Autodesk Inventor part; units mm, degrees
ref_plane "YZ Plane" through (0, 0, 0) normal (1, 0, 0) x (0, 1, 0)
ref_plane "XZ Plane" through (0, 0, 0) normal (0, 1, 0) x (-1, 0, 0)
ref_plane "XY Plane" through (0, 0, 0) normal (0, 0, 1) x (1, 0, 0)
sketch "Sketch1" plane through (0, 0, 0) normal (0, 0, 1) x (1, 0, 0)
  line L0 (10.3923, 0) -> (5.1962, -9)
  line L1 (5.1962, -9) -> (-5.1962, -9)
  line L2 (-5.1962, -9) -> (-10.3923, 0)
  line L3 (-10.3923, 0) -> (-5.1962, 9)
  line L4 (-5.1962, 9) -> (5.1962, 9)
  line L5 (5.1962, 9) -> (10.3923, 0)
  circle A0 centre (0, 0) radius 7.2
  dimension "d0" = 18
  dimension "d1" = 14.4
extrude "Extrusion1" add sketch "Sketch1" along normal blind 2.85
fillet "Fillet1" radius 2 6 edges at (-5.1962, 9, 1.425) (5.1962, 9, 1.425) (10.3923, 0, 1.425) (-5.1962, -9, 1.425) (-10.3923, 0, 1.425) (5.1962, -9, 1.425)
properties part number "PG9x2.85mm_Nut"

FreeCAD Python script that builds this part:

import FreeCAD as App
import Part
import Sketcher

V = App.Vector
Q = App.Units.Quantity


def edges_at(feature, points):
    """Names of the edges that pass closest to the given points."""
    edges = feature.Shape.Edges
    near = lambda p: min(range(len(edges)), key=lambda i: edges[i].distToShape(Part.Vertex(*p))[0])
    return sorted({f"Edge{near(p) + 1}" for p in points})

doc = App.newDocument("Part")
body = doc.addObject("PartDesign::Body", "Body")

sketch1 = body.newObject("Sketcher::SketchObject", "Sketch")
sketch1.AttachmentSupport = (doc.getObject("XY_Plane"), [""])
sketch1.MapMode = "FlatFace"
sketch1.addGeometry(Part.LineSegment(V(5, -9, 0), V(10, 0, 0)), False)
sketch1.addGeometry(Part.LineSegment(V(10, 0, 0), V(5, 9, 0)), False)
sketch1.addGeometry(Part.LineSegment(V(5, 9, 0), V(-5, 9, 0)), False)
sketch1.addGeometry(Part.LineSegment(V(-5, 9, 0), V(-10, 0, 0)), False)
sketch1.addGeometry(Part.LineSegment(V(-10, 0, 0), V(-5, -9, 0)), False)
sketch1.addGeometry(Part.LineSegment(V(-5, -9, 0), V(5, -9, 0)), False)
sketch1.addGeometry(Part.Circle(V(0, 0, 0), V(0, 0, 1), 7), False)
sketch1.addConstraint(Sketcher.Constraint("Coincident", 0, 2, 1, 1))
sketch1.addConstraint(Sketcher.Constraint("Coincident", 1, 2, 2, 1))
sketch1.addConstraint(Sketcher.Constraint("Coincident", 2, 2, 3, 1))
sketch1.addConstraint(Sketcher.Constraint("Coincident", 3, 2, 4, 1))
sketch1.addConstraint(Sketcher.Constraint("Coincident", 4, 2, 5, 1))
sketch1.addConstraint(Sketcher.Constraint("Coincident", 5, 2, 0, 1))
sketch1.addConstraint(Sketcher.Constraint("Horizontal", 2))
sketch1.addConstraint(Sketcher.Constraint("Horizontal", 5))
sketch1.addConstraint(Sketcher.Constraint("Coincident", 6, 3, -1, 1))
sketch1.addConstraint(Sketcher.Constraint("Symmetric", 0, 2, 3, 2, -1, 1))
sketch1.addConstraint(Sketcher.Constraint("Symmetric", 1, 2, 4, 2, -1, 1))
sketch1.addConstraint(Sketcher.Constraint("PointOnObject", 0, 2, -1))
sketch1.addConstraint(Sketcher.Constraint("Parallel", 0, 3))
sketch1.addConstraint(Sketcher.Constraint("Vertical", 2, 2, 4, 2))
sketch1.addConstraint(Sketcher.Constraint("Diameter", 6, Q("14.4 mm")))
sketch1.addConstraint(Sketcher.Constraint("DistanceY", 4, 2, 2, 2, Q("18 mm")))
sketch1.addConstraint(Sketcher.Constraint("Angle", 0, Q("60.0003 deg")))
sketch1.addConstraint(Sketcher.Constraint("DistanceX", 2, 2, 2, 1, Q("10.3924 mm")))
pad1 = body.newObject("PartDesign::Pad", "Pad")
pad1.Profile = sketch1
pad1.Length = 2.85
doc.recompute()

fillet = body.newObject("PartDesign::Fillet", "Fillet")
fillet.Base = (pad1, edges_at(pad1, [
    (-5.196, 9, 1.425),
    (5.196, 9, 1.425),
    (10.392, 0, 1.425),
    (-5.196, -9, 1.425),
    (-10.392, 0, 1.425),
    (5.196, -9, 1.425),
]))
fillet.Radius = 2

doc.recompute()
